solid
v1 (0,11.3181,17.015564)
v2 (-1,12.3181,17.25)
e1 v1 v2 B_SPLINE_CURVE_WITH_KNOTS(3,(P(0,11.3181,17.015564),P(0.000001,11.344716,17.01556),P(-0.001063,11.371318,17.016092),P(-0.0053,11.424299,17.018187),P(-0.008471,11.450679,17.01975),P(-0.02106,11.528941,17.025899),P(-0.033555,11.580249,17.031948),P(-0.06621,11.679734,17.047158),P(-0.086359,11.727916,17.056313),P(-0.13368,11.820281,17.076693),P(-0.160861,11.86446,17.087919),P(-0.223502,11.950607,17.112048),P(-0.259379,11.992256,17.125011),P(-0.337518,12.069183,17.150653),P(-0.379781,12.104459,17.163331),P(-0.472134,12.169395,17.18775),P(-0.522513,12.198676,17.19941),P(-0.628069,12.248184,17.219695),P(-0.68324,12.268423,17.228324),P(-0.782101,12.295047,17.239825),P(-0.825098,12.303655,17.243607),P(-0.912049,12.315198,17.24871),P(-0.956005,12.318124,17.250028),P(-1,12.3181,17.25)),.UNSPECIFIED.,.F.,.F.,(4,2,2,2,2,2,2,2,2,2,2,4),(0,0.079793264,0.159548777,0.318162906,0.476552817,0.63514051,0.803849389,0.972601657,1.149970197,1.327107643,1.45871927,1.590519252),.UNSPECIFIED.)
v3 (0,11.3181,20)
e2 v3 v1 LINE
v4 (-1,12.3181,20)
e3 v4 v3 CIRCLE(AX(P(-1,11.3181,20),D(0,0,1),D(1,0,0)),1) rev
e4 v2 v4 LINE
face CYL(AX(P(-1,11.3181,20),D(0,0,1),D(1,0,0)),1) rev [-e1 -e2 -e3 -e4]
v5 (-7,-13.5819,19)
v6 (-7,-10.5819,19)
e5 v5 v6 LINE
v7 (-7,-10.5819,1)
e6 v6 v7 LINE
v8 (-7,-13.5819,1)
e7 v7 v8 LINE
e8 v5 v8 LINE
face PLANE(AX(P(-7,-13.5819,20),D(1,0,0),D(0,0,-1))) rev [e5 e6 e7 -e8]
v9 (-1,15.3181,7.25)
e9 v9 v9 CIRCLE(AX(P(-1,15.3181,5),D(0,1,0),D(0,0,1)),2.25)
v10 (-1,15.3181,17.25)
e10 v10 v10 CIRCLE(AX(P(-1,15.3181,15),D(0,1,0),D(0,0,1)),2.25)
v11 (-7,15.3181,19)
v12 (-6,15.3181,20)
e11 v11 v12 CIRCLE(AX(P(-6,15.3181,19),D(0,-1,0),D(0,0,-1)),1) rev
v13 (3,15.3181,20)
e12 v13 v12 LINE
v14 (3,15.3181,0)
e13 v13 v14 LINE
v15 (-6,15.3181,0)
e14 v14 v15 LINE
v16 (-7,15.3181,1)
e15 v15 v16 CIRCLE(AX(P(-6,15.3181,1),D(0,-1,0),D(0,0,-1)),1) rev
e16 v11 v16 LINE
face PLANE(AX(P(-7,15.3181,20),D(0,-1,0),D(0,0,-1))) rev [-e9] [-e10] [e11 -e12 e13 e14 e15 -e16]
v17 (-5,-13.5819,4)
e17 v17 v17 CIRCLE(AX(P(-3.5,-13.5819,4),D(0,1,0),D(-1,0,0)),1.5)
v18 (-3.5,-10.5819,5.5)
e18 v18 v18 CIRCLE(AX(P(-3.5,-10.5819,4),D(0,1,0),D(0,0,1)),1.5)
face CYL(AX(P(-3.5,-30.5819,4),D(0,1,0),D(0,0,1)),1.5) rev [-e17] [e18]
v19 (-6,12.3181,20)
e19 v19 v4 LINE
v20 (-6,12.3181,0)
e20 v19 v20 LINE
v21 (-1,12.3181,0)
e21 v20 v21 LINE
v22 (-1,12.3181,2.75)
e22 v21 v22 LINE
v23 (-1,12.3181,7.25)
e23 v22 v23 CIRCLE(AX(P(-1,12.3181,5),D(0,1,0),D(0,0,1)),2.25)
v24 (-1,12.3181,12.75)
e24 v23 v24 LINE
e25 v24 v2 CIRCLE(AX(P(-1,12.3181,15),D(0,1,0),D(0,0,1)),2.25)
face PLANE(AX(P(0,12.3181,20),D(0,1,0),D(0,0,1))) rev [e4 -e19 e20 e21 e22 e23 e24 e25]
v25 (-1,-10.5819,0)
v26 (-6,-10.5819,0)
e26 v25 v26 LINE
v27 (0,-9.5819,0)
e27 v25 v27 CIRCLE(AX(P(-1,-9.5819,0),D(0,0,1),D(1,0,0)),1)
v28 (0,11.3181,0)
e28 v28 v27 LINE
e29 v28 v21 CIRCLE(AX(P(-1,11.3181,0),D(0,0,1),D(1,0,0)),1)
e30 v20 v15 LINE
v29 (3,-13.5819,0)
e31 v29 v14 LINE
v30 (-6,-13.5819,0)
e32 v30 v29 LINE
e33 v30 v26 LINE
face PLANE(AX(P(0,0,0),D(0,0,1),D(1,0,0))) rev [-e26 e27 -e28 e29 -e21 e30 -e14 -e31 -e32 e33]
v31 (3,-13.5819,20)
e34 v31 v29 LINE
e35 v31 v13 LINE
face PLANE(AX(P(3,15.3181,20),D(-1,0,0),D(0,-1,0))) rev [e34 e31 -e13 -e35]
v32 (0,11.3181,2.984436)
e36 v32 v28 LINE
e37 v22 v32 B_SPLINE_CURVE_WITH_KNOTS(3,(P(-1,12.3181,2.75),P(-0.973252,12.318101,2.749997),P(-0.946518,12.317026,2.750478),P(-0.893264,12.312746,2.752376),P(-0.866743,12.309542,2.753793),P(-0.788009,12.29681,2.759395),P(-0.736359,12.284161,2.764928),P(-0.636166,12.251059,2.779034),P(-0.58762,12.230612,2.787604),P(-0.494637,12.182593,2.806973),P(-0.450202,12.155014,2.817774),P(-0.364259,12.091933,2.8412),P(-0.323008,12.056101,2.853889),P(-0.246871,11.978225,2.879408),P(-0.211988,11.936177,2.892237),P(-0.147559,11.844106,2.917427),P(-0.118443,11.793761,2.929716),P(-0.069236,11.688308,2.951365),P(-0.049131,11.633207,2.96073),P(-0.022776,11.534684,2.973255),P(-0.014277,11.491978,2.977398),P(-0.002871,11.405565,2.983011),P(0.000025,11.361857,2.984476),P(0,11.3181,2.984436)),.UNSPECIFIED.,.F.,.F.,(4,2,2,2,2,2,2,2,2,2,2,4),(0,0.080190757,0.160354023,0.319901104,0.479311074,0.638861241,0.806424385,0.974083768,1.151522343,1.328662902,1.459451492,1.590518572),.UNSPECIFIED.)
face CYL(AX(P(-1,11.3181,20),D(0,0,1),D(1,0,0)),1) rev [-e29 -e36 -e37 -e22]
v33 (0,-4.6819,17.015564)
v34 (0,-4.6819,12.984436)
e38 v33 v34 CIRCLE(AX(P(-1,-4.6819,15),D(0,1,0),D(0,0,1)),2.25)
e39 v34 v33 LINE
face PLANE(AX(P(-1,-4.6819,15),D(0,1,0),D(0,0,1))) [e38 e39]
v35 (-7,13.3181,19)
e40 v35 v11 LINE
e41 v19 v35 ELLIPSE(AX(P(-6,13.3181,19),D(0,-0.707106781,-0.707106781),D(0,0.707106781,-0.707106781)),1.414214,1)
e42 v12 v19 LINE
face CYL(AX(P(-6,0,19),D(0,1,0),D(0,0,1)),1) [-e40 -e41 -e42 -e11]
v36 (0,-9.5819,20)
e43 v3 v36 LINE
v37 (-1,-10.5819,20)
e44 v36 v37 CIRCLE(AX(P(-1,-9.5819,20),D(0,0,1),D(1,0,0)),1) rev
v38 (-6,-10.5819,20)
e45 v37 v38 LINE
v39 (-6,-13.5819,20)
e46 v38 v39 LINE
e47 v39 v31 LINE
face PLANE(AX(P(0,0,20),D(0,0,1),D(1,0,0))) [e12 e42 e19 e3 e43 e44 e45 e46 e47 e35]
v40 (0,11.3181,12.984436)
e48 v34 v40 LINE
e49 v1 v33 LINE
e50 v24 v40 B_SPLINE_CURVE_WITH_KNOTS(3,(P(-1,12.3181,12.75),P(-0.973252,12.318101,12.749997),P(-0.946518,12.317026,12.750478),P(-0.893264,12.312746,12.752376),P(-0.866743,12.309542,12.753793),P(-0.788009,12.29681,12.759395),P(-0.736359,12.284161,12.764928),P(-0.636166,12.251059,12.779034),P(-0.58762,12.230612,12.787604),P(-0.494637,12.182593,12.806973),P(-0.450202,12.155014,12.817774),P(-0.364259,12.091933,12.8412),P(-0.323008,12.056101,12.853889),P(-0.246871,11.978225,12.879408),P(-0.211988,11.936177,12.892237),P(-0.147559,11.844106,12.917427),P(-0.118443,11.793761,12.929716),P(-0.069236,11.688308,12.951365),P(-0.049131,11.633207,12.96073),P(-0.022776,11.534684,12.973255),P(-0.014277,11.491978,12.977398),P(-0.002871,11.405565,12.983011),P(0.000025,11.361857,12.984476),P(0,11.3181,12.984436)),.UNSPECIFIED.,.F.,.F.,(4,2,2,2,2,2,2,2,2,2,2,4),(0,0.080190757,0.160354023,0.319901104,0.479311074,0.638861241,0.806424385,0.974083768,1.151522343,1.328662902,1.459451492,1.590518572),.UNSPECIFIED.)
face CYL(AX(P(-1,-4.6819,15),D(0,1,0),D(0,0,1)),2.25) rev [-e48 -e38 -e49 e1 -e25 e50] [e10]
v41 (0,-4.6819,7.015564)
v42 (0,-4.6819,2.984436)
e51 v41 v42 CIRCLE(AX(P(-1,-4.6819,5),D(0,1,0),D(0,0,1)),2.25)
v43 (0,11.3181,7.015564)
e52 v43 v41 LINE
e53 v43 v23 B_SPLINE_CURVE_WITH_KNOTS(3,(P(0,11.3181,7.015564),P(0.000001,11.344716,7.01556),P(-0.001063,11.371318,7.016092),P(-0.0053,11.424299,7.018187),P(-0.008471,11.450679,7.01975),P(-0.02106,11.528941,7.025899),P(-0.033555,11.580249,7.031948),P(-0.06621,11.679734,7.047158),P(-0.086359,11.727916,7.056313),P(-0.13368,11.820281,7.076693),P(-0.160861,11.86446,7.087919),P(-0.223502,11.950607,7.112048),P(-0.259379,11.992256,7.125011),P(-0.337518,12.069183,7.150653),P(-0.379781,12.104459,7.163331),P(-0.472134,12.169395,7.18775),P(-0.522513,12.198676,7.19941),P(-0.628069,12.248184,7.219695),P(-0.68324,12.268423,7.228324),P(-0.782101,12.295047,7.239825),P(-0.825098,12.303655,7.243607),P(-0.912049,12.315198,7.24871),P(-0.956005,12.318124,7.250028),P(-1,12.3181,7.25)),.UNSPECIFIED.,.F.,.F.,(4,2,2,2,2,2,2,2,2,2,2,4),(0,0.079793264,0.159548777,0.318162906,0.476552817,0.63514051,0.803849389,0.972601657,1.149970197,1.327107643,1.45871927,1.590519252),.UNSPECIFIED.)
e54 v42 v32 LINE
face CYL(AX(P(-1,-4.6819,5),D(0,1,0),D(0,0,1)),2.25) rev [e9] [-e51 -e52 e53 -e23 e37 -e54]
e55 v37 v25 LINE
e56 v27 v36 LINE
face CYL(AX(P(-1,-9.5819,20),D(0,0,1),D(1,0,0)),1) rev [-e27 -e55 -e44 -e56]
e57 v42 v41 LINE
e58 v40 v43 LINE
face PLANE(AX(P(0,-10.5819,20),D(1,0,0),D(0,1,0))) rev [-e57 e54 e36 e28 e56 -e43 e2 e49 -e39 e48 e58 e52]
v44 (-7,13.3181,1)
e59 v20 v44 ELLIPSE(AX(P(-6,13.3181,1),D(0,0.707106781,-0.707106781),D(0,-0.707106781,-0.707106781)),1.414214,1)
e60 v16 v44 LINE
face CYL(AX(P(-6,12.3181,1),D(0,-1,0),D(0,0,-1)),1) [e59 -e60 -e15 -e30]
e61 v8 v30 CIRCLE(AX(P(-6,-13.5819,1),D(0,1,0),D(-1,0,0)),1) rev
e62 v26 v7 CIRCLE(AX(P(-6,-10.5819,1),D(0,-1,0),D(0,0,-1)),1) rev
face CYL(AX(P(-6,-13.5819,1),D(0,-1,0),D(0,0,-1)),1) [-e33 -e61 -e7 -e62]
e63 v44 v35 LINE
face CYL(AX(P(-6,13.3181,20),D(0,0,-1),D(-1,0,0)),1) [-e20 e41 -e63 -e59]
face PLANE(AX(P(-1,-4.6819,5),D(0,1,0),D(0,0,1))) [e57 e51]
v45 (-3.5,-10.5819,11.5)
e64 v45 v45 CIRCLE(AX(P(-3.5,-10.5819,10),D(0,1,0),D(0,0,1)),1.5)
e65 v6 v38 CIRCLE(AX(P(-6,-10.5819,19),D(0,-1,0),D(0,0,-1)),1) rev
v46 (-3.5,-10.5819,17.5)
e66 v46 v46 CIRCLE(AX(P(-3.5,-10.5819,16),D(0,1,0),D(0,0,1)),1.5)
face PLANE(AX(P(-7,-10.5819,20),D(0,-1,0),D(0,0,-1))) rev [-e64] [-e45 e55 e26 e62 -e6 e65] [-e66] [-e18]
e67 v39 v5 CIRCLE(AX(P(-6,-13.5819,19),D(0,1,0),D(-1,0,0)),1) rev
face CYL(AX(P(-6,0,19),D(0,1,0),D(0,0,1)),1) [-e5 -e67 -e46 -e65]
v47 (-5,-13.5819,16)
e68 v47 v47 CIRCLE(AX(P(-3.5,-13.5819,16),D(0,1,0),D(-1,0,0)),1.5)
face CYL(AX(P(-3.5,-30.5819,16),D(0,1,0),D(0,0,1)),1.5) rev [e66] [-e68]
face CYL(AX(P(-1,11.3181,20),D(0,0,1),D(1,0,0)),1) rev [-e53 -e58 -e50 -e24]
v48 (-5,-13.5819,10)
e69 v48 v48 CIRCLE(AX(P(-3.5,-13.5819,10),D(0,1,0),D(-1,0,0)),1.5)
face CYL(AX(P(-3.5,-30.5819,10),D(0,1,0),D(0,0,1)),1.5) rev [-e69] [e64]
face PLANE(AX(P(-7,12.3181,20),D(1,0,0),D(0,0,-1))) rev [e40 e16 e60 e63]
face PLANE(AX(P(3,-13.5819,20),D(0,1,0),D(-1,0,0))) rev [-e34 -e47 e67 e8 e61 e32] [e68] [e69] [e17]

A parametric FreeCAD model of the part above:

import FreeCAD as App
import Part
import Sketcher

V = App.Vector


def edges_at(feature, points):
    """Names of the edges that pass closest to the given points."""
    edges = feature.Shape.Edges
    near = lambda p: min(range(len(edges)), key=lambda i: edges[i].distToShape(Part.Vertex(*p))[0])
    return sorted({f"Edge{near(p) + 1}" for p in points})

doc = App.newDocument("Part")
body = doc.addObject("PartDesign::Body", "Body")

# Sketch on XY plane
sketch1 = body.newObject("Sketcher::SketchObject", "Sketch")
sketch1.AttachmentSupport = (doc.getObject("XY_Plane"), [""])
sketch1.MapMode = "FlatFace"
sketch1.addGeometry([
    Part.LineSegment(V(0, 12.3, 0), V(0, -10.6, 0)),  # 0
    Part.LineSegment(V(0, -10.6, 0), V(-7, -10.6, 0)),  # 1
    Part.LineSegment(V(-7, -10.6, 0), V(-7, -13.6, 0)),  # 2
    Part.LineSegment(V(-7, -13.6, 0), V(3, -13.6, 0)),  # 3
    Part.LineSegment(V(3, -13.6, 0), V(3, 15.3, 0)),  # 4
    Part.LineSegment(V(3, 15.3, 0), V(-7, 15.3, 0)),  # 5
    Part.LineSegment(V(-7, 15.3, 0), V(-7, 12.3, 0)),  # 6
    Part.LineSegment(V(-7, 12.3, 0), V(0, 12.3, 0)),  # 7
], False)
sketch1.addConstraint([
    Sketcher.Constraint("Coincident", 0, 2, 1, 1),
    Sketcher.Constraint("Coincident", 1, 2, 2, 1),
    Sketcher.Constraint("Coincident", 2, 2, 3, 1),
    Sketcher.Constraint("Coincident", 3, 2, 4, 1),
    Sketcher.Constraint("Coincident", 4, 2, 5, 1),
    Sketcher.Constraint("Coincident", 5, 2, 6, 1),
    Sketcher.Constraint("Coincident", 6, 2, 7, 1),
    Sketcher.Constraint("Coincident", 7, 2, 0, 1),
    Sketcher.Constraint("Vertical", 0),
    Sketcher.Constraint("Horizontal", 1),
    Sketcher.Constraint("Vertical", 2),
    Sketcher.Constraint("Horizontal", 3),
    Sketcher.Constraint("Vertical", 4),
    Sketcher.Constraint("Horizontal", 5),
    Sketcher.Constraint("Vertical", 6),
    Sketcher.Constraint("Horizontal", 7),
    Sketcher.Constraint("PointOnObject", 0, 2, -2),
    Sketcher.Constraint("Vertical", 2, 2, 5, 2),
    Sketcher.Constraint("Equal", 2, 6),
    Sketcher.Constraint("DistanceX", 1, 2, 1, 1, 7.0),
    Sketcher.Constraint("DistanceX", 3, 1, 3, 2, 10.0),
    Sketcher.Constraint("DistanceY", 2, 2, 2, 1, 3.0),
    Sketcher.Constraint("DistanceY", 0, 2, 0, 1, 22.9),
    Sketcher.Constraint("DistanceY", 0, 2, -1, 1, 10.5819),
])
pad1 = body.newObject("PartDesign::Pad", "Pad")
pad1.Profile = sketch1
pad1.Length = 20

# Sketch on XZ plane
sketch2 = body.newObject("Sketcher::SketchObject", "Sketch001")
sketch2.AttachmentSupport = (doc.getObject("XZ_Plane"), [""])
sketch2.MapMode = "FlatFace"
sketch2.AttachmentOffset = App.Placement(V(0, 0, -15.3181), App.Rotation())
sketch2.addGeometry([
    Part.Circle(V(-1, 5, 0), V(0, 0, 1), 2.2),
    Part.Circle(V(-1, 15, 0), V(0, 0, 1), 2.2),
], False)
sketch2.addConstraint([
    Sketcher.Constraint("Equal", 0, 1),
    Sketcher.Constraint("Vertical", 0, 3, 1, 3),
    Sketcher.Constraint("Diameter", 0, 4.5),
    Sketcher.Constraint("DistanceX", 0, 3, -1, 1, 1.0),
    Sketcher.Constraint("DistanceY", -1, 1, 0, 3, 5.0),
    Sketcher.Constraint("DistanceY", -1, 1, 1, 3, 15.0),
])
pocket1 = body.newObject("PartDesign::Pocket", "Pocket")
pocket1.Profile = sketch2
pocket1.Length = 20
pocket1.Reversed = True

# Sketch on XZ plane
sketch3 = body.newObject("Sketcher::SketchObject", "Sketch002")
sketch3.AttachmentSupport = (doc.getObject("XZ_Plane"), [""])
sketch3.MapMode = "FlatFace"
sketch3.AttachmentOffset = App.Placement(V(0, 0, 10.5819), App.Rotation())
sketch3.addGeometry([
    Part.Circle(V(-3.5, 4, 0), V(0, 0, 1), 1.5),
    Part.Circle(V(-3.5, 10, 0), V(0, 0, 1), 1.5),
    Part.Circle(V(-3.5, 16, 0), V(0, 0, 1), 1.5),
], False)
sketch3.addConstraint([
    Sketcher.Constraint("Equal", 0, 1),
    Sketcher.Constraint("Equal", 1, 2),
    Sketcher.Constraint("Vertical", 0, 3, 1, 3),
    Sketcher.Constraint("Vertical", 1, 3, 2, 3),
    Sketcher.Constraint("Diameter", 0, 3.0),
    Sketcher.Constraint("DistanceY", -1, 1, 0, 3, 4.0),
    Sketcher.Constraint("DistanceY", -1, 1, 1, 3, 10.0),
    Sketcher.Constraint("DistanceY", -1, 1, 2, 3, 16.0),
    Sketcher.Constraint("DistanceX", 0, 3, -1, 1, 3.5),
])
pocket2 = body.newObject("PartDesign::Pocket", "Pocket001")
pocket2.Profile = sketch3
pocket2.Length = 20
pocket2.Reversed = True
doc.recompute()

fillet = body.newObject("PartDesign::Fillet", "Fillet")
fillet.Base = (pocket2, edges_at(pocket2, [
    (-7, -12.082, 0),
    (0, -10.582, 10),
    (-7, 12.318, 10),
    (-7, 13.818, 20),
    (-7, -12.082, 20),
    (-7, 13.818, 0),
]))
fillet.Radius = 1
doc.recompute()

fillet2 = body.newObject("PartDesign::Fillet", "Fillet001")
fillet2.Base = (fillet, edges_at(fillet, [(0, 12.318, 18.508), (0, 12.318, 10), (0, 12.318, 1.492)]))
fillet2.Radius = 1

doc.recompute()
